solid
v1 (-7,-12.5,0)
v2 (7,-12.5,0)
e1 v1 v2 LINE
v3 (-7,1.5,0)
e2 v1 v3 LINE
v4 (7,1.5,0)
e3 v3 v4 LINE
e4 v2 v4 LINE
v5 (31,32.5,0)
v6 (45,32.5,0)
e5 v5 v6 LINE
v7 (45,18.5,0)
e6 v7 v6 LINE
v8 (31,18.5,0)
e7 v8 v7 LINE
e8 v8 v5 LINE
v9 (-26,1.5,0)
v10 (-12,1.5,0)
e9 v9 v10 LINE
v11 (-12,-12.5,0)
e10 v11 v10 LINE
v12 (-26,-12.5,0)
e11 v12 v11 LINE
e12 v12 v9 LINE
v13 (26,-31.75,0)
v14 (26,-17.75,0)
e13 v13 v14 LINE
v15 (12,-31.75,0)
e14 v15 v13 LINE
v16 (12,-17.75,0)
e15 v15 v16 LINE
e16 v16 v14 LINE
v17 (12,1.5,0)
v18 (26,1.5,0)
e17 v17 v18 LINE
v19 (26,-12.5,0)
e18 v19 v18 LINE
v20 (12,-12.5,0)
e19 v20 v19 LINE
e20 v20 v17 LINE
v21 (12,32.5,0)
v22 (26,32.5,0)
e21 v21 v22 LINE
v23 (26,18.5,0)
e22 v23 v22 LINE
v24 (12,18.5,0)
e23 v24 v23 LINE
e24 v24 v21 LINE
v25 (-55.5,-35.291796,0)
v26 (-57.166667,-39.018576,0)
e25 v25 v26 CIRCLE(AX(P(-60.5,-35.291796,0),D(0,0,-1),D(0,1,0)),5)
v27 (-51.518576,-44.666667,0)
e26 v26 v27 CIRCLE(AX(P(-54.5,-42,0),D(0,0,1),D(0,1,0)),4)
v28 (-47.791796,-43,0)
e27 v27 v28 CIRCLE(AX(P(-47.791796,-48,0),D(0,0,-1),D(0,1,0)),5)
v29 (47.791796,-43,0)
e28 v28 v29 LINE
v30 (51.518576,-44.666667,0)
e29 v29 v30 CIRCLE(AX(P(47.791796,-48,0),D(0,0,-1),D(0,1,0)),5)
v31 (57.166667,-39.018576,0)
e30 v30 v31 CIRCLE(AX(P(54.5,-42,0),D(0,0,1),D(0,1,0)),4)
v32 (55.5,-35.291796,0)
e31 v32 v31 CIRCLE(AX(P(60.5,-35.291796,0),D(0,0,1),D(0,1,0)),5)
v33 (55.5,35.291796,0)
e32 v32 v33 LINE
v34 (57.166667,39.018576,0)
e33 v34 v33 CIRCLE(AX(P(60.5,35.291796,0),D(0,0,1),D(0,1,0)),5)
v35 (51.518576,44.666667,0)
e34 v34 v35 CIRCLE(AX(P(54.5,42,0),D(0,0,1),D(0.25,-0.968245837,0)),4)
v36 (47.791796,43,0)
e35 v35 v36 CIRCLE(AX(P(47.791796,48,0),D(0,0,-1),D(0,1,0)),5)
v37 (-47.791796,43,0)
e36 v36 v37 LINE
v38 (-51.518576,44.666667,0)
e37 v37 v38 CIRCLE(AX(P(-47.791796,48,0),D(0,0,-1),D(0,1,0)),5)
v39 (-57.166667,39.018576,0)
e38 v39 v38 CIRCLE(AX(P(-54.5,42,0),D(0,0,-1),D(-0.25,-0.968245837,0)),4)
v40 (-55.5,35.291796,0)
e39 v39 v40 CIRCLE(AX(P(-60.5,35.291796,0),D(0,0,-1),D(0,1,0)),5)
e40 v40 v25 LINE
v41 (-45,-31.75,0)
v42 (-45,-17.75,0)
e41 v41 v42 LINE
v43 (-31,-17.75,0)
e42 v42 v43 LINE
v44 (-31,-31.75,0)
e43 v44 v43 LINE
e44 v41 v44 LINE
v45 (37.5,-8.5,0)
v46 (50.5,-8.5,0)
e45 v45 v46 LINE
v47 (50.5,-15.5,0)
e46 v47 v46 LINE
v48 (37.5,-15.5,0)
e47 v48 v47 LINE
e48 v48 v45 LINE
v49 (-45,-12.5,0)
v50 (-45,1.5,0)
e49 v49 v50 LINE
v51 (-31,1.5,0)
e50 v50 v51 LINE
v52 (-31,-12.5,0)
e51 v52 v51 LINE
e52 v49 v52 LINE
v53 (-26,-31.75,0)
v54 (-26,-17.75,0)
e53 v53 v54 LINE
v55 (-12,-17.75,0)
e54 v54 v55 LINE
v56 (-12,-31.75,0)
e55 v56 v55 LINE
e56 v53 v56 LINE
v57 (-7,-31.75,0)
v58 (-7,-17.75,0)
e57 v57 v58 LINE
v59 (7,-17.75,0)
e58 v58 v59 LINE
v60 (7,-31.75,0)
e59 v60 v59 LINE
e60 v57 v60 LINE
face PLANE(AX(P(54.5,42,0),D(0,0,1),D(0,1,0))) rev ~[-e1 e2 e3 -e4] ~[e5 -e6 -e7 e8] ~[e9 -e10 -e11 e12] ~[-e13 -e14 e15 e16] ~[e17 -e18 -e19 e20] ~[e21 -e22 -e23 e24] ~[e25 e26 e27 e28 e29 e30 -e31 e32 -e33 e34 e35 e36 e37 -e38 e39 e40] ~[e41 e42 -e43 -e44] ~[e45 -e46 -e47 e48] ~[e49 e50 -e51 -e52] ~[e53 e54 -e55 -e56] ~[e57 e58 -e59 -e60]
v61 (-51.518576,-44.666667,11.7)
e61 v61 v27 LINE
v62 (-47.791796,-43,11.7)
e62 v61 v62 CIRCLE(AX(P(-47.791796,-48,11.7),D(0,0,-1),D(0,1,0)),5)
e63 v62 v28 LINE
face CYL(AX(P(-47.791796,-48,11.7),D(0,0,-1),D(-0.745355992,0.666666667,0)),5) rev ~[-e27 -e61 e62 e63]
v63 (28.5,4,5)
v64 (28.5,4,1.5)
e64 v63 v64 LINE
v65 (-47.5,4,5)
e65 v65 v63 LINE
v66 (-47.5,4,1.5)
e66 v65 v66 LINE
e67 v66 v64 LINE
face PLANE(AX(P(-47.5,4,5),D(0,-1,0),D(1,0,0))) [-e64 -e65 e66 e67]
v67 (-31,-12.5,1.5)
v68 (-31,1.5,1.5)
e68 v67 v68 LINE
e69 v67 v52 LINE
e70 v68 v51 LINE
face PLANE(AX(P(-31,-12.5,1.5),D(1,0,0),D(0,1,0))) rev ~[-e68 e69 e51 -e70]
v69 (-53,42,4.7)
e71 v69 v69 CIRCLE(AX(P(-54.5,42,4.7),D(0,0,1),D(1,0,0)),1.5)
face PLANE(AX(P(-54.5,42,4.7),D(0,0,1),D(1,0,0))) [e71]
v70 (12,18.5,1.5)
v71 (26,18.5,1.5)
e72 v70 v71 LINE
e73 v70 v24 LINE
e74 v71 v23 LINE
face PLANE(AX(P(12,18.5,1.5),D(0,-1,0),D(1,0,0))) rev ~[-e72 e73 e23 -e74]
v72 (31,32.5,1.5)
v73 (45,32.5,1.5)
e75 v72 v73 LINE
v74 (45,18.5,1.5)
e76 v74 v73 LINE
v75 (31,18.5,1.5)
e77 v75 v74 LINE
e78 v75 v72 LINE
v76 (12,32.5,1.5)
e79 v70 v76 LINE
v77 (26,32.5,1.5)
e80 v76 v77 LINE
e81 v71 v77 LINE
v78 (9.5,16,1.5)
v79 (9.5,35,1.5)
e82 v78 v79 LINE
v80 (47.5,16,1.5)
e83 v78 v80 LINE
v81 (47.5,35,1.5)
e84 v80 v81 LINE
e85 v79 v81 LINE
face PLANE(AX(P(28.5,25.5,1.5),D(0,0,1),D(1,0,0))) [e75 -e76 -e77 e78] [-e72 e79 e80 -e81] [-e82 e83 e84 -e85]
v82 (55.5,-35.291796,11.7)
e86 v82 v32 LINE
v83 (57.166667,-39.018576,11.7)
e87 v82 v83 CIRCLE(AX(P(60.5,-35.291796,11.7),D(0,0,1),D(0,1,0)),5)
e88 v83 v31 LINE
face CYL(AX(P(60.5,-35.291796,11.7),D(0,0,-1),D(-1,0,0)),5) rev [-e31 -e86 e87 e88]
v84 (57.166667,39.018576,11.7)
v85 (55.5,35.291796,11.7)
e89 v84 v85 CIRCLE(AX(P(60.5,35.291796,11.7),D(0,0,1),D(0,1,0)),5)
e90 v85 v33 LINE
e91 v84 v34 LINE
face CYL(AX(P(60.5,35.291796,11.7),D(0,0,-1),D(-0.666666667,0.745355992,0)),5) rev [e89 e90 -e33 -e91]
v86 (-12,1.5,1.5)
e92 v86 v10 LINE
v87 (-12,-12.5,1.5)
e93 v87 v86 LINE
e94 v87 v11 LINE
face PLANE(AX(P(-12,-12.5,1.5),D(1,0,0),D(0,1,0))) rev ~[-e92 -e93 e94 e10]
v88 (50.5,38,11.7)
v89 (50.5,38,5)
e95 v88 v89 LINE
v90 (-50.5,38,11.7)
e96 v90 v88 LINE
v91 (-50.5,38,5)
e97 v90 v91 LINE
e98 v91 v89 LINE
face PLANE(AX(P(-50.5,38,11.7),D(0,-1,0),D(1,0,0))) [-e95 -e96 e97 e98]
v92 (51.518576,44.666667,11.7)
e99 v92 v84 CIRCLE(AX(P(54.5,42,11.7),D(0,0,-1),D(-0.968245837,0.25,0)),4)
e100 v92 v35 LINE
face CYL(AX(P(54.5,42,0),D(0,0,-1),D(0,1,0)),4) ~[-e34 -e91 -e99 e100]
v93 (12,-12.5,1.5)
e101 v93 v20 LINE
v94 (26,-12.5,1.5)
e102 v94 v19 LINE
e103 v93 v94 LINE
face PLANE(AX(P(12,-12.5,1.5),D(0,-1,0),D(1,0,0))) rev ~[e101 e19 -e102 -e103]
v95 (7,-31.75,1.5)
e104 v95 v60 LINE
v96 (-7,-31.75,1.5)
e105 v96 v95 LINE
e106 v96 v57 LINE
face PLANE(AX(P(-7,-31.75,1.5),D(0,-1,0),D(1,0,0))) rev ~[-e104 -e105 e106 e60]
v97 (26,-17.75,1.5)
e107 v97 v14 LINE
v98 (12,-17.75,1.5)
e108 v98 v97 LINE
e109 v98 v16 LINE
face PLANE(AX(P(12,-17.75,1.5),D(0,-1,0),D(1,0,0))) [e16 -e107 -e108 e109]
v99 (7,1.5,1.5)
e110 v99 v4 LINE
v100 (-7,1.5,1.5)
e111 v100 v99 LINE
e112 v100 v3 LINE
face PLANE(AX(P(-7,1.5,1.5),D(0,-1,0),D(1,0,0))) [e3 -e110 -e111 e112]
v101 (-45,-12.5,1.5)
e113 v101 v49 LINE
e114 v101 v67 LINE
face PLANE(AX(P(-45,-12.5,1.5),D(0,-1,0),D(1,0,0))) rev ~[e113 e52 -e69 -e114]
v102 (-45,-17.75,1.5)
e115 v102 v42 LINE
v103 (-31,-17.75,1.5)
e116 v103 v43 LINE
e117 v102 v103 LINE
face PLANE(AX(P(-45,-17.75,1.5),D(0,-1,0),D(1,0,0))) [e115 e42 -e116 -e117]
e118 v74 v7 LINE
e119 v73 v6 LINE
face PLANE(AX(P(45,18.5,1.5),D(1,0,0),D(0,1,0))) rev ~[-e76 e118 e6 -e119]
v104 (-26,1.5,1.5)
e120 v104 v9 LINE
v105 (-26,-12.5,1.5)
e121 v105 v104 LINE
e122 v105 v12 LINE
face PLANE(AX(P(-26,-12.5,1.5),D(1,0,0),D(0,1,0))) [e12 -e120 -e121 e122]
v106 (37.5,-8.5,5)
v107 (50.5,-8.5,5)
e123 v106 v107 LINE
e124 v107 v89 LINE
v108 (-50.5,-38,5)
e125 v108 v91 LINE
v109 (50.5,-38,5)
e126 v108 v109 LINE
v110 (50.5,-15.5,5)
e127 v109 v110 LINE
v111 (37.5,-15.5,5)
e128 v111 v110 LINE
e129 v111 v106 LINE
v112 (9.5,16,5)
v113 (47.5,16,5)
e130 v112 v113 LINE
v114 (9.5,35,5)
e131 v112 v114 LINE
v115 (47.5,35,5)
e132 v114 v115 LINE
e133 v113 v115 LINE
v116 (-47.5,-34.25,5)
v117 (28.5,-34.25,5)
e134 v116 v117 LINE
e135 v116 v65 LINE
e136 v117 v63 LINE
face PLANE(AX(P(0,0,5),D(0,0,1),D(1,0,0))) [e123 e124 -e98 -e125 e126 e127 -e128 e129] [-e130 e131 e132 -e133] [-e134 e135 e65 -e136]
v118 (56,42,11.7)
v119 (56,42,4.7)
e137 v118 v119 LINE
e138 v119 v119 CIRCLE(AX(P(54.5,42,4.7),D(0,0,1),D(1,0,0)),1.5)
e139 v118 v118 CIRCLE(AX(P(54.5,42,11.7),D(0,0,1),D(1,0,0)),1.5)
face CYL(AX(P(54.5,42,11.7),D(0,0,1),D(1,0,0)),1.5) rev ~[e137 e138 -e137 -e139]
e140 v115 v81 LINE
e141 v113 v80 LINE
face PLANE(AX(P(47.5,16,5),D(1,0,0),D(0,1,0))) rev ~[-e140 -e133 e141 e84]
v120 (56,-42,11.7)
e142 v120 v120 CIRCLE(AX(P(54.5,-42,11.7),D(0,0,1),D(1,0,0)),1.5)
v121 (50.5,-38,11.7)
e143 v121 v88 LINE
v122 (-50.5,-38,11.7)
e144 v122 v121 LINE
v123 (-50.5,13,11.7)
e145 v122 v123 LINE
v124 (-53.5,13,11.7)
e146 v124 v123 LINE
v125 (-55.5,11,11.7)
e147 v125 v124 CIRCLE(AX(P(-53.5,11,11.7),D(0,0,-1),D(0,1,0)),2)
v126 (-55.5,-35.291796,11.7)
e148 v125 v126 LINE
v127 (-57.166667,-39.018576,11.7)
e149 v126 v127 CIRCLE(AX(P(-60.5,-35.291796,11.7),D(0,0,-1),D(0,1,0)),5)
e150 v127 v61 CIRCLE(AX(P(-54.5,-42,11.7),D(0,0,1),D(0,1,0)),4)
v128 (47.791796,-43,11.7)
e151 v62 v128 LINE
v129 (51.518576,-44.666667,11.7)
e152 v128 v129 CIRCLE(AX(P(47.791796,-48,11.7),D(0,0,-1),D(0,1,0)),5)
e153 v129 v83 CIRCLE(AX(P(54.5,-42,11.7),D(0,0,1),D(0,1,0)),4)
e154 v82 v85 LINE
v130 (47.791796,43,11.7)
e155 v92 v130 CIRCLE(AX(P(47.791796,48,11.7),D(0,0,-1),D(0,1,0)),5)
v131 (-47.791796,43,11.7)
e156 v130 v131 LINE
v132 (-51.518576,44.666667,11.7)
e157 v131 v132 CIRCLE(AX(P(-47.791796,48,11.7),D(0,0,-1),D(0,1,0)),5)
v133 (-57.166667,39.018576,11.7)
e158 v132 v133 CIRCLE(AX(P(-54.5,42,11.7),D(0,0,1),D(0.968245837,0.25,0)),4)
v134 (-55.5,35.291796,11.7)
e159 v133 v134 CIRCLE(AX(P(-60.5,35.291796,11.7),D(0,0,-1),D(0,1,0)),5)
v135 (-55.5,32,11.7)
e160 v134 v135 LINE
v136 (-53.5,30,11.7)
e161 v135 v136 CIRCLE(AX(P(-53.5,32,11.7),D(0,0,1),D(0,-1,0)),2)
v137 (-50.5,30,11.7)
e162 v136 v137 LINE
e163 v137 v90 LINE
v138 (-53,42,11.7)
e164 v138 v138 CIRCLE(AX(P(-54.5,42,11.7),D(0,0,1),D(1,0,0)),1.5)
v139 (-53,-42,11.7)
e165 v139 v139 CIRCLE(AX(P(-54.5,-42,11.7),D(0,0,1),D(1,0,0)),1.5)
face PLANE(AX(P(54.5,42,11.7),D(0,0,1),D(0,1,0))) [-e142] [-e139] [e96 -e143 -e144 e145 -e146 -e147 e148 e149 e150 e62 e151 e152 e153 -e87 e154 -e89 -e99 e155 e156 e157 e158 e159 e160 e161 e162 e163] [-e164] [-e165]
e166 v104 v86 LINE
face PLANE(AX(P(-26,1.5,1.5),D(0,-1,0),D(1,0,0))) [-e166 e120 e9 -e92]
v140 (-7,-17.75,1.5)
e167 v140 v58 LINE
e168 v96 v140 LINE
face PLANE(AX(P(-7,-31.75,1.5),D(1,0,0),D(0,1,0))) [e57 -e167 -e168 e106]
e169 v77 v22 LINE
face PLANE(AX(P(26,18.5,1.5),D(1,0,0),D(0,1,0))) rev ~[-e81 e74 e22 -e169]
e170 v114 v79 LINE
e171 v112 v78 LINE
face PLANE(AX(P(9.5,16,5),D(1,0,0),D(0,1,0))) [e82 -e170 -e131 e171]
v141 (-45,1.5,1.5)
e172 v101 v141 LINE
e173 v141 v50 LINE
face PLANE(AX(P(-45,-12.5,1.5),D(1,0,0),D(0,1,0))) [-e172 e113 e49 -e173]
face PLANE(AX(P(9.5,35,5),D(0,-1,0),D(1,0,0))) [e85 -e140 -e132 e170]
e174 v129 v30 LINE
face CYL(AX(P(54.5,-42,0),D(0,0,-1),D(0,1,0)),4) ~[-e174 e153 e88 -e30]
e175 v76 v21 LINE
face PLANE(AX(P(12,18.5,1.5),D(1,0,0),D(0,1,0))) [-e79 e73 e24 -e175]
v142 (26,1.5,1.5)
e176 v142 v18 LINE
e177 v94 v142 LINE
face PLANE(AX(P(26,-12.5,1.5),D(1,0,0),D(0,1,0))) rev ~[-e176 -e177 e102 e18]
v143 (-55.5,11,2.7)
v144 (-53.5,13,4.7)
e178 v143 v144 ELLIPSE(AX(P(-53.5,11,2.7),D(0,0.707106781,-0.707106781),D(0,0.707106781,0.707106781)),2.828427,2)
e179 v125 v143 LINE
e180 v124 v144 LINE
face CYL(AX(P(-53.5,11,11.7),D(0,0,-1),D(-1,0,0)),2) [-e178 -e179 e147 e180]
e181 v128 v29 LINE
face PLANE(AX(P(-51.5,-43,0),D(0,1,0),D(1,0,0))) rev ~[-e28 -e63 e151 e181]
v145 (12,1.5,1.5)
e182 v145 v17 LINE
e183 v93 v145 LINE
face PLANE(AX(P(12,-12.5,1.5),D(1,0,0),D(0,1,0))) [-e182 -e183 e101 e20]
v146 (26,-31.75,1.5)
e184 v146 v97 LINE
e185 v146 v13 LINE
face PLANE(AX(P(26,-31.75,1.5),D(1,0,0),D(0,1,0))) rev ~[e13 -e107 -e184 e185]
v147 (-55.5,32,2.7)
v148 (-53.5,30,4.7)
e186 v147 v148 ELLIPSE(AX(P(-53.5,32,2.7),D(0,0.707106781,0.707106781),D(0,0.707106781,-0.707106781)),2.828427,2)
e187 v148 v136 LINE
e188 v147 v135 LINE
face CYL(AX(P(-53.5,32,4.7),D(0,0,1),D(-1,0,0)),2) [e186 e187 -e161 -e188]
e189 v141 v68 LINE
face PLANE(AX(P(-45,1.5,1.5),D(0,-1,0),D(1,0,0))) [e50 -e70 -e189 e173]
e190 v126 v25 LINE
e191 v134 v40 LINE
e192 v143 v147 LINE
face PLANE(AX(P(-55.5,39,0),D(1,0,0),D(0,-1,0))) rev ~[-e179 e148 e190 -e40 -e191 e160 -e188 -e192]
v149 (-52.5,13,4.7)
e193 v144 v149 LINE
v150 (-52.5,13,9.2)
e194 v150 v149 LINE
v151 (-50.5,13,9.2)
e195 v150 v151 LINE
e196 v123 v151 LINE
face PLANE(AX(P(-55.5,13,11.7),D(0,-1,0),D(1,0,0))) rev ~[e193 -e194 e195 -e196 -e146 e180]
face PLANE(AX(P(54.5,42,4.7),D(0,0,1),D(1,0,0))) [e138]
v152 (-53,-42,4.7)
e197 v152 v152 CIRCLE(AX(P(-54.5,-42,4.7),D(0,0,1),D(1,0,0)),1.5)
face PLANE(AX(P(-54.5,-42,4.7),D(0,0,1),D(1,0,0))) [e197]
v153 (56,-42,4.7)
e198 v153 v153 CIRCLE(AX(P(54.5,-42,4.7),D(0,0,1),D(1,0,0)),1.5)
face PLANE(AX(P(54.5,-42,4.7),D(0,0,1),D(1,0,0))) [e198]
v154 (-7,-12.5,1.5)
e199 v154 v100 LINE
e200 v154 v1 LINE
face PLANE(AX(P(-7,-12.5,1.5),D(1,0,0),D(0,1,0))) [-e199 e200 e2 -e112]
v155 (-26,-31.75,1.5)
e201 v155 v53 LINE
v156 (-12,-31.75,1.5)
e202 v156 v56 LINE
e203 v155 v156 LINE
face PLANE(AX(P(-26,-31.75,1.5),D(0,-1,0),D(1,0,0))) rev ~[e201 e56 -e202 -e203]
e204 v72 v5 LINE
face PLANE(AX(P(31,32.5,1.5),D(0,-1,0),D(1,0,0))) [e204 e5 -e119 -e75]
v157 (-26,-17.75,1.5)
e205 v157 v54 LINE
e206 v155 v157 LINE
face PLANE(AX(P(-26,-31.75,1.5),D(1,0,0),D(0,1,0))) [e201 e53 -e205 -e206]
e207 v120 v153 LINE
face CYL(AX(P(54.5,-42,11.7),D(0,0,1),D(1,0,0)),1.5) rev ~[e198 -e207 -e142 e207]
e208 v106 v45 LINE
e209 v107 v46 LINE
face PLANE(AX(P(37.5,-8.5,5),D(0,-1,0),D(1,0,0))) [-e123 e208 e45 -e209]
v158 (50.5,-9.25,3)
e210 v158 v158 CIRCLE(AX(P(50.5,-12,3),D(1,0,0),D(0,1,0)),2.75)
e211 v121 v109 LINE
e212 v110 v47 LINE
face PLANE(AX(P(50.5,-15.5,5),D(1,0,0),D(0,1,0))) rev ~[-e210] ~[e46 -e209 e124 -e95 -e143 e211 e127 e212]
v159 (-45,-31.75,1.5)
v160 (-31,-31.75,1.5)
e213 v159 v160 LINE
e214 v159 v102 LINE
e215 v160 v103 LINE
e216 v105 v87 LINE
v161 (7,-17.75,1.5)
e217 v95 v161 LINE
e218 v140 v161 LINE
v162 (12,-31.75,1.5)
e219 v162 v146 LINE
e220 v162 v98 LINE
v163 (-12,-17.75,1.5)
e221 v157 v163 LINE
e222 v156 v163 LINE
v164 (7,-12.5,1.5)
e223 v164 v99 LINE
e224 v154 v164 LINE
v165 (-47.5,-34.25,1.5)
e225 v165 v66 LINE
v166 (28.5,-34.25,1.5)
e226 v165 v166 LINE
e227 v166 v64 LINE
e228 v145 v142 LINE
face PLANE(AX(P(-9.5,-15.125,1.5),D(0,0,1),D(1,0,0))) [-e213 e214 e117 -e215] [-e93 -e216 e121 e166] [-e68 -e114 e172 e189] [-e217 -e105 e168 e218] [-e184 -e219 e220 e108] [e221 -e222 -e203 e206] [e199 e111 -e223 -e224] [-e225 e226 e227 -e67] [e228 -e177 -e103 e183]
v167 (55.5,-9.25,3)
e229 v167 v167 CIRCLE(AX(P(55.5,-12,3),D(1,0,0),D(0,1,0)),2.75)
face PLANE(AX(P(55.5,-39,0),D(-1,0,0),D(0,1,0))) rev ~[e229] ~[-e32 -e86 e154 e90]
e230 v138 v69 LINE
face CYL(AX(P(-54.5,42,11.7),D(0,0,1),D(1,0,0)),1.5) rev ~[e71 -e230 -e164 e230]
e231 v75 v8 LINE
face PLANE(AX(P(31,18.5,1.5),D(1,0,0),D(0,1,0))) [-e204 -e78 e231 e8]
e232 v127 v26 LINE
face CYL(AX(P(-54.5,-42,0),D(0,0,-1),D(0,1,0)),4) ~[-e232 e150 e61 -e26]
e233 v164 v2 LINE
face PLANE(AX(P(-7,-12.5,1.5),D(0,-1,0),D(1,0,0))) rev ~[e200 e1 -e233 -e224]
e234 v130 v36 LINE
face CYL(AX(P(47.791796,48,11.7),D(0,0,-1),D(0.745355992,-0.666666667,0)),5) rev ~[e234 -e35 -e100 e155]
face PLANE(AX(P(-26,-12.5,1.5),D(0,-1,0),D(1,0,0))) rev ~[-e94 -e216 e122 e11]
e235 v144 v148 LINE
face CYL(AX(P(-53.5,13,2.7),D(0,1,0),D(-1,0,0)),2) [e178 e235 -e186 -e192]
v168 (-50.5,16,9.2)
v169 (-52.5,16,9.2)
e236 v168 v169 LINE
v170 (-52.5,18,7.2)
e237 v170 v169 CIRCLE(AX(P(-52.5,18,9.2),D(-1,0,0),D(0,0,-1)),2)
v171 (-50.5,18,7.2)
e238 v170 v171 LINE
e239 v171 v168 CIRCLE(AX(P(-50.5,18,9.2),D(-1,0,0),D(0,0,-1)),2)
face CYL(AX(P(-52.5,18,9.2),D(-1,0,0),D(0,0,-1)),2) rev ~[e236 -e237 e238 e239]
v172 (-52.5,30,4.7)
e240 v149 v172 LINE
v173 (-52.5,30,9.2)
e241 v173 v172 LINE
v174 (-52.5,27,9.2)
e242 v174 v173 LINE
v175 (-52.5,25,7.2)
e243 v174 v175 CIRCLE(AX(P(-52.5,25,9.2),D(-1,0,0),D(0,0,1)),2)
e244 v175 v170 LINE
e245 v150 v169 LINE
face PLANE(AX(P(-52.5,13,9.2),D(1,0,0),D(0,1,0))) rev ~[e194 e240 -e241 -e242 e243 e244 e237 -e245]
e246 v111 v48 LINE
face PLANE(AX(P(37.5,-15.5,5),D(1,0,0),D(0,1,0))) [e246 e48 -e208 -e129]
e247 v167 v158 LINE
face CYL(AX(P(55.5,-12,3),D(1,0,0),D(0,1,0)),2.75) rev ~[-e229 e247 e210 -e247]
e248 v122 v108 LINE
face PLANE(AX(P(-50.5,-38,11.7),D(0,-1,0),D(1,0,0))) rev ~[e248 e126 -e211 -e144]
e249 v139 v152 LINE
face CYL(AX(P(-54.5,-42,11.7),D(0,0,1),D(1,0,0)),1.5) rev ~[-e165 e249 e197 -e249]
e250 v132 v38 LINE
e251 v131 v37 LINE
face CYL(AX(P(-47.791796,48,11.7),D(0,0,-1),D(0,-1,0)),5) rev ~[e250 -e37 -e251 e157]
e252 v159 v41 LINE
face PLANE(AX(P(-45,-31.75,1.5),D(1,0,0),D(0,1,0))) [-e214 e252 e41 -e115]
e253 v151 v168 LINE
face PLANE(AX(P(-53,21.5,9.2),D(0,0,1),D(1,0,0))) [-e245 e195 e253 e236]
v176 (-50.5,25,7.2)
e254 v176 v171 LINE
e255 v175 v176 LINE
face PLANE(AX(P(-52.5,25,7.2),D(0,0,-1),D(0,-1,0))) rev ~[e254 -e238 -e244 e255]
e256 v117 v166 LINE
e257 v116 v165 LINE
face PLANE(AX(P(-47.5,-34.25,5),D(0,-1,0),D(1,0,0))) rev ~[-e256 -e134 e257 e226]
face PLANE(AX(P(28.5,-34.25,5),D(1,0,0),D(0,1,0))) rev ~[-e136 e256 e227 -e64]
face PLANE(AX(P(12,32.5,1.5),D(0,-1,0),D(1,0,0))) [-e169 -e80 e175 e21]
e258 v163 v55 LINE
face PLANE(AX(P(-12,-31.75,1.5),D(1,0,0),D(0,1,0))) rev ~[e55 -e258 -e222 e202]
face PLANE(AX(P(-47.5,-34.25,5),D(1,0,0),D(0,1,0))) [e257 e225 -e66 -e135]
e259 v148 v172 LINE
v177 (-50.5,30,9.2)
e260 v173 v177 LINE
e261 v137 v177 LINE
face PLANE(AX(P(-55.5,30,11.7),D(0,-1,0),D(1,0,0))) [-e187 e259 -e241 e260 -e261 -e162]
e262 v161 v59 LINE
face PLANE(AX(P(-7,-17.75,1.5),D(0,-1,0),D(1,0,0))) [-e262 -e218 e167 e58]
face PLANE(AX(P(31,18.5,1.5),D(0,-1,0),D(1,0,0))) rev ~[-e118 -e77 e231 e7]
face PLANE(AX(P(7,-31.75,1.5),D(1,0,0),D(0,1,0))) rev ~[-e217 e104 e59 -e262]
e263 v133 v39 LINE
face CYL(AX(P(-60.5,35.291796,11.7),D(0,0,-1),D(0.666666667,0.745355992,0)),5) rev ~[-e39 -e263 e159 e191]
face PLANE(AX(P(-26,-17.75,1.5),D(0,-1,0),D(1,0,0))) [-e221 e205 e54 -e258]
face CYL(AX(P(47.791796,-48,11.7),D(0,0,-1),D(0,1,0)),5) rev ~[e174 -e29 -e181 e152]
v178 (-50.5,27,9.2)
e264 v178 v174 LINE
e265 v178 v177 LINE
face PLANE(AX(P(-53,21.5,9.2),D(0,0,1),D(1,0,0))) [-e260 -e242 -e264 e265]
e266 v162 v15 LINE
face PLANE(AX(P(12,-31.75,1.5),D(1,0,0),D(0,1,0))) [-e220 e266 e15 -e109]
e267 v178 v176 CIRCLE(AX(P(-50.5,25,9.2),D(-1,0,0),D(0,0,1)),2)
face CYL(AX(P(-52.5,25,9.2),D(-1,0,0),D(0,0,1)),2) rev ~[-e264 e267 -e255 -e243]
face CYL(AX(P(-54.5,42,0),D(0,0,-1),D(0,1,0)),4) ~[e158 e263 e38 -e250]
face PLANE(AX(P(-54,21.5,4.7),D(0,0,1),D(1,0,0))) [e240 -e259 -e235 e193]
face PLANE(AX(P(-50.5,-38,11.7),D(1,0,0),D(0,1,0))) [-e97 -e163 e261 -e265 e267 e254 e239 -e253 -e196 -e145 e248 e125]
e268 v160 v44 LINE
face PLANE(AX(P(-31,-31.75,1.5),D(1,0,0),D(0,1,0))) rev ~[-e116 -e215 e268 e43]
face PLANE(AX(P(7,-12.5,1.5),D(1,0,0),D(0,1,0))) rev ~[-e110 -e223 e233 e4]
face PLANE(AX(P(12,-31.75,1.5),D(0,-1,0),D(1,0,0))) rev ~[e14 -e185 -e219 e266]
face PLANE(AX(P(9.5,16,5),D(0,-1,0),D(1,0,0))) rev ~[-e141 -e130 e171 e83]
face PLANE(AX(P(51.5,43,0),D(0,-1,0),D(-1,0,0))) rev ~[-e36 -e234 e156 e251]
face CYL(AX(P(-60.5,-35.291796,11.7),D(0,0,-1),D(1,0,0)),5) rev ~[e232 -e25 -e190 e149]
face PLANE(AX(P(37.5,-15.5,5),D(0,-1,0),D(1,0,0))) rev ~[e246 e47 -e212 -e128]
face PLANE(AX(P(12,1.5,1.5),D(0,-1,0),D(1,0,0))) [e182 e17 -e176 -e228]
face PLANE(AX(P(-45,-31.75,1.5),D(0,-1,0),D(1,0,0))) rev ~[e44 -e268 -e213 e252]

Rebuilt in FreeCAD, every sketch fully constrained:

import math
import FreeCAD as App
import Part
import Sketcher
from FreeCAD import Vector


def edges_at(feature, points):
    """Names of the edges that pass closest to the given points."""
    edges = feature.Shape.Edges
    near = lambda p: min(range(len(edges)), key=lambda i: edges[i].distToShape(Part.Vertex(*p))[0])
    return sorted({f"Edge{near(p) + 1}" for p in points})

doc = App.newDocument("Part")
body = doc.addObject("PartDesign::Body", "Body")

# Sketch on XY plane
sketch1 = body.newObject("Sketcher::SketchObject", "Sketch")
sketch1.AttachmentSupport = (doc.getObject("XY_Plane"), [""])
sketch1.MapMode = "FlatFace"
sketch1.addGeometry(Part.LineSegment(Vector(51.5, 43, 0), Vector(-51.5, 43, 0)), False)
sketch1.addGeometry(Part.ArcOfCircle(Part.Circle(Vector(-51.5, 39, 0), Vector(0, 0, 1), 4), math.radians(90), math.radians(180)), False)
sketch1.addGeometry(Part.LineSegment(Vector(-55.5, 39, 0), Vector(-55.5, -39, 0)), False)
sketch1.addGeometry(Part.ArcOfCircle(Part.Circle(Vector(-51.5, -39, 0), Vector(0, 0, 1), 4), math.radians(-180), math.radians(-90)), False)
sketch1.addGeometry(Part.LineSegment(Vector(-51.5, -43, 0), Vector(51.5, -43, 0)), False)
sketch1.addGeometry(Part.ArcOfCircle(Part.Circle(Vector(51.5, -39, 0), Vector(0, 0, 1), 4), math.radians(-90), math.radians(0)), False)
sketch1.addGeometry(Part.LineSegment(Vector(55.5, -39, 0), Vector(55.5, 39, 0)), False)
sketch1.addGeometry(Part.ArcOfCircle(Part.Circle(Vector(51.5, 39, 0), Vector(0, 0, 1), 4), math.radians(0), math.radians(90)), False)
sketch1.addConstraint(Sketcher.Constraint("Tangent", 0, 2, 1, 1))
sketch1.addConstraint(Sketcher.Constraint("Tangent", 1, 2, 2, 1))
sketch1.addConstraint(Sketcher.Constraint("Tangent", 2, 2, 3, 1))
sketch1.addConstraint(Sketcher.Constraint("Tangent", 3, 2, 4, 1))
sketch1.addConstraint(Sketcher.Constraint("Tangent", 4, 2, 5, 1))
sketch1.addConstraint(Sketcher.Constraint("Tangent", 5, 2, 6, 1))
sketch1.addConstraint(Sketcher.Constraint("Tangent", 6, 2, 7, 1))
sketch1.addConstraint(Sketcher.Constraint("Tangent", 7, 2, 0, 1))
sketch1.addConstraint(Sketcher.Constraint("Horizontal", 0))
sketch1.addConstraint(Sketcher.Constraint("Vertical", 2))
sketch1.addConstraint(Sketcher.Constraint("Horizontal", 4))
sketch1.addConstraint(Sketcher.Constraint("Vertical", 6))
sketch1.addConstraint(Sketcher.Constraint("Equal", 1, 3))
sketch1.addConstraint(Sketcher.Constraint("Equal", 3, 5))
sketch1.addConstraint(Sketcher.Constraint("Equal", 5, 7))
sketch1.addConstraint(Sketcher.Constraint("Symmetric", 1, 3, 5, 3, -1, 1))
sketch1.addConstraint(Sketcher.Constraint("Radius", 1, 4.0))
sketch1.addConstraint(Sketcher.Constraint("DistanceX", 0, 2, 0, 1, 103.0))
sketch1.addConstraint(Sketcher.Constraint("DistanceY", 2, 2, 2, 1, 78.0))
pad1 = body.newObject("PartDesign::Pad", "Pad")
pad1.Profile = sketch1
pad1.Length = 11.7

# Sketch on XY plane
sketch2 = body.newObject("Sketcher::SketchObject", "Sketch001")
sketch2.AttachmentSupport = (doc.getObject("XY_Plane"), [""])
sketch2.MapMode = "FlatFace"
sketch2.addGeometry(Part.Circle(Vector(54.5, 42, 0), Vector(0, 0, 1), 4), False)
sketch2.addGeometry(Part.Circle(Vector(-54.5, 42, 0), Vector(0, 0, 1), 4), False)
sketch2.addGeometry(Part.Circle(Vector(54.5, -42, 0), Vector(0, 0, 1), 4), False)
sketch2.addGeometry(Part.Circle(Vector(-54.5, -42, 0), Vector(0, 0, 1), 4), False)
sketch2.addConstraint(Sketcher.Constraint("Equal", 0, 1))
sketch2.addConstraint(Sketcher.Constraint("Equal", 1, 2))
sketch2.addConstraint(Sketcher.Constraint("Equal", 2, 3))
sketch2.addConstraint(Sketcher.Constraint("Symmetric", 1, 3, 2, 3, -1, 1))
sketch2.addConstraint(Sketcher.Constraint("Symmetric", 0, 3, 3, 3, -1, 1))
sketch2.addConstraint(Sketcher.Constraint("Symmetric", 0, 3, 1, 3, -2))
sketch2.addConstraint(Sketcher.Constraint("Diameter", 0, 8.0))
sketch2.addConstraint(Sketcher.Constraint("DistanceY", -1, 1, 0, 3, 42.0))
sketch2.addConstraint(Sketcher.Constraint("DistanceX", 1, 3, 0, 3, 109.0))
pad2 = body.newObject("PartDesign::Pad", "Pad001")
pad2.Profile = sketch2
pad2.Length = 11.7

# Sketch on XY plane
sketch3 = body.newObject("Sketcher::SketchObject", "Sketch002")
sketch3.AttachmentSupport = (doc.getObject("XY_Plane"), [""])
sketch3.MapMode = "FlatFace"
sketch3.AttachmentOffset = App.Placement(Vector(0, 0, 11.7), App.Rotation())
sketch3.addGeometry(Part.Circle(Vector(54.5, 42, 0), Vector(0, 0, 1), 1.5), False)
sketch3.addGeometry(Part.Circle(Vector(-54.5, 42, 0), Vector(0, 0, 1), 1.5), False)
sketch3.addGeometry(Part.Circle(Vector(-54.5, -42, 0), Vector(0, 0, 1), 1.5), False)
sketch3.addGeometry(Part.Circle(Vector(54.5, -42, 0), Vector(0, 0, 1), 1.5), False)
sketch3.addConstraint(Sketcher.Constraint("Equal", 0, 1))
sketch3.addConstraint(Sketcher.Constraint("Equal", 1, 2))
sketch3.addConstraint(Sketcher.Constraint("Equal", 2, 3))
sketch3.addConstraint(Sketcher.Constraint("Symmetric", 0, 3, 2, 3, -1, 1))
sketch3.addConstraint(Sketcher.Constraint("Symmetric", 1, 3, 3, 3, -1, 1))
sketch3.addConstraint(Sketcher.Constraint("Symmetric", 0, 3, 1, 3, -2))
sketch3.addConstraint(Sketcher.Constraint("Diameter", 0, 3.0))
sketch3.addConstraint(Sketcher.Constraint("DistanceY", -1, 1, 0, 3, 42.0))
sketch3.addConstraint(Sketcher.Constraint("DistanceX", 1, 3, 0, 3, 109.0))
pocket1 = body.newObject("PartDesign::Pocket", "Pocket")
pocket1.Profile = sketch3
pocket1.Length = 7
doc.recompute()

fillet = body.newObject("PartDesign::Fillet", "Fillet")
fillet.Base = (pocket1, edges_at(pocket1, [
    (-55.5, -38.127, 5.85),
    (-55.5, 38.127, 5.85),
    (50.627, 43, 5.85),
    (-50.627, 43, 5.85),
    (55.5, -38.127, 5.85),
    (55.5, 38.127, 5.85),
    (-50.627, -43, 5.85),
    (50.627, -43, 5.85),
]))
fillet.Radius = 5

# Sketch on XY plane
sketch4 = body.newObject("Sketcher::SketchObject", "Sketch003")
sketch4.AttachmentSupport = (doc.getObject("XY_Plane"), [""])
sketch4.MapMode = "FlatFace"
sketch4.AttachmentOffset = App.Placement(Vector(0, 0, 11.7), App.Rotation())
sketch4.addGeometry(Part.LineSegment(Vector(-50, 38, 0), Vector(-50, -38, 0)), False)
sketch4.addGeometry(Part.LineSegment(Vector(-50, -38, 0), Vector(50, -38, 0)), False)
sketch4.addGeometry(Part.LineSegment(Vector(50, -38, 0), Vector(50, 38, 0)), False)
sketch4.addGeometry(Part.LineSegment(Vector(50, 38, 0), Vector(-50, 38, 0)), False)
sketch4.addConstraint(Sketcher.Constraint("Coincident", 0, 2, 1, 1))
sketch4.addConstraint(Sketcher.Constraint("Coincident", 1, 2, 2, 1))
sketch4.addConstraint(Sketcher.Constraint("Coincident", 2, 2, 3, 1))
sketch4.addConstraint(Sketcher.Constraint("Coincident", 3, 2, 0, 1))
sketch4.addConstraint(Sketcher.Constraint("Vertical", 0))
sketch4.addConstraint(Sketcher.Constraint("Horizontal", 1))
sketch4.addConstraint(Sketcher.Constraint("Vertical", 2))
sketch4.addConstraint(Sketcher.Constraint("Horizontal", 3))
sketch4.addConstraint(Sketcher.Constraint("Symmetric", 0, 2, 2, 2, -1, 1))
sketch4.addConstraint(Sketcher.Constraint("DistanceX", 1, 1, 1, 2, 101.0))
sketch4.addConstraint(Sketcher.Constraint("DistanceY", 0, 2, 0, 1, 76.0))
pocket2 = body.newObject("PartDesign::Pocket", "Pocket001")
pocket2.Profile = sketch4
pocket2.Length = 6.7

# Sketch on XY plane
sketch5 = body.newObject("Sketcher::SketchObject", "Sketch004")
sketch5.AttachmentSupport = (doc.getObject("XY_Plane"), [""])
sketch5.MapMode = "FlatFace"
sketch5.AttachmentOffset = App.Placement(Vector(0, 0, 5), App.Rotation())
sketch5.addGeometry(Part.LineSegment(Vector(-48, 4, 0), Vector(-48, -34, 0)), False)
sketch5.addGeometry(Part.LineSegment(Vector(-48, -34, 0), Vector(28, -34, 0)), False)
sketch5.addGeometry(Part.LineSegment(Vector(28, -34, 0), Vector(28, 4, 0)), False)
sketch5.addGeometry(Part.LineSegment(Vector(28, 4, 0), Vector(-48, 4, 0)), False)
sketch5.addGeometry(Part.LineSegment(Vector(10, 35, 0), Vector(10, 16, 0)), False)
sketch5.addGeometry(Part.LineSegment(Vector(10, 16, 0), Vector(48, 16, 0)), False)
sketch5.addGeometry(Part.LineSegment(Vector(48, 16, 0), Vector(48, 35, 0)), False)
sketch5.addGeometry(Part.LineSegment(Vector(48, 35, 0), Vector(10, 35, 0)), False)
sketch5.addConstraint(Sketcher.Constraint("Coincident", 0, 2, 1, 1))
sketch5.addConstraint(Sketcher.Constraint("Coincident", 1, 2, 2, 1))
sketch5.addConstraint(Sketcher.Constraint("Coincident", 2, 2, 3, 1))
sketch5.addConstraint(Sketcher.Constraint("Coincident", 3, 2, 0, 1))
sketch5.addConstraint(Sketcher.Constraint("Coincident", 4, 2, 5, 1))
sketch5.addConstraint(Sketcher.Constraint("Coincident", 5, 2, 6, 1))
sketch5.addConstraint(Sketcher.Constraint("Coincident", 6, 2, 7, 1))
sketch5.addConstraint(Sketcher.Constraint("Coincident", 7, 2, 4, 1))
sketch5.addConstraint(Sketcher.Constraint("Vertical", 0))
sketch5.addConstraint(Sketcher.Constraint("Horizontal", 1))
sketch5.addConstraint(Sketcher.Constraint("Vertical", 2))
sketch5.addConstraint(Sketcher.Constraint("Horizontal", 3))
sketch5.addConstraint(Sketcher.Constraint("Vertical", 4))
sketch5.addConstraint(Sketcher.Constraint("Horizontal", 5))
sketch5.addConstraint(Sketcher.Constraint("Vertical", 6))
sketch5.addConstraint(Sketcher.Constraint("Horizontal", 7))
sketch5.addConstraint(Sketcher.Constraint("DistanceX", 1, 1, 1, 2, 76.0))
sketch5.addConstraint(Sketcher.Constraint("DistanceX", 5, 1, 5, 2, 38.0))
sketch5.addConstraint(Sketcher.Constraint("DistanceY", 4, 2, 4, 1, 19.0))
sketch5.addConstraint(Sketcher.Constraint("DistanceY", -1, 1, 2, 2, 4.0))
sketch5.addConstraint(Sketcher.Constraint("DistanceY", -1, 1, 4, 2, 16.0))
sketch5.addConstraint(Sketcher.Constraint("DistanceX", 4, 2, 2, 2, 19.0))
sketch5.addConstraint(Sketcher.Constraint("DistanceY", 0, 2, 0, 1, 38.25))
sketch5.addConstraint(Sketcher.Constraint("DistanceX", 0, 2, -1, 1, 47.5))
pocket3 = body.newObject("PartDesign::Pocket", "Pocket002")
pocket3.Profile = sketch5
pocket3.Length = 3.5

# Sketch on XY plane
sketch6 = body.newObject("Sketcher::SketchObject", "Sketch005")
sketch6.AttachmentSupport = (doc.getObject("XY_Plane"), [""])
sketch6.MapMode = "FlatFace"
sketch6.AttachmentOffset = App.Placement(Vector(0, 0, 1.5), App.Rotation())
sketch6.addGeometry(Part.LineSegment(Vector(-45, 2, 0), Vector(-45, -12, 0)), False)
sketch6.addGeometry(Part.LineSegment(Vector(-45, -12, 0), Vector(-31, -12, 0)), False)
sketch6.addGeometry(Part.LineSegment(Vector(-31, -12, 0), Vector(-31, 2, 0)), False)
sketch6.addGeometry(Part.LineSegment(Vector(-31, 2, 0), Vector(-45, 2, 0)), False)
sketch6.addGeometry(Part.LineSegment(Vector(-26, 2, 0), Vector(-26, -12, 0)), False)
sketch6.addGeometry(Part.LineSegment(Vector(-26, -12, 0), Vector(-12, -12, 0)), False)
sketch6.addGeometry(Part.LineSegment(Vector(-12, -12, 0), Vector(-12, 2, 0)), False)
sketch6.addGeometry(Part.LineSegment(Vector(-12, 2, 0), Vector(-26, 2, 0)), False)
sketch6.addGeometry(Part.LineSegment(Vector(-7, 2, 0), Vector(-7, -12, 0)), False)
sketch6.addGeometry(Part.LineSegment(Vector(-7, -12, 0), Vector(7, -12, 0)), False)
sketch6.addGeometry(Part.LineSegment(Vector(7, -12, 0), Vector(7, 2, 0)), False)
sketch6.addGeometry(Part.LineSegment(Vector(7, 2, 0), Vector(-7, 2, 0)), False)
sketch6.addGeometry(Part.LineSegment(Vector(12, 2, 0), Vector(12, -12, 0)), False)
sketch6.addGeometry(Part.LineSegment(Vector(12, -12, 0), Vector(26, -12, 0)), False)
sketch6.addGeometry(Part.LineSegment(Vector(26, -12, 0), Vector(26, 2, 0)), False)
sketch6.addGeometry(Part.LineSegment(Vector(26, 2, 0), Vector(12, 2, 0)), False)
sketch6.addGeometry(Part.LineSegment(Vector(-45, -18, 0), Vector(-45, -32, 0)), False)
sketch6.addGeometry(Part.LineSegment(Vector(-45, -32, 0), Vector(-31, -32, 0)), False)
sketch6.addGeometry(Part.LineSegment(Vector(-31, -32, 0), Vector(-31, -18, 0)), False)
sketch6.addGeometry(Part.LineSegment(Vector(-31, -18, 0), Vector(-45, -18, 0)), False)
sketch6.addGeometry(Part.LineSegment(Vector(-26, -18, 0), Vector(-26, -32, 0)), False)
sketch6.addGeometry(Part.LineSegment(Vector(-26, -32, 0), Vector(-12, -32, 0)), False)
sketch6.addGeometry(Part.LineSegment(Vector(-12, -32, 0), Vector(-12, -18, 0)), False)
sketch6.addGeometry(Part.LineSegment(Vector(-12, -18, 0), Vector(-26, -18, 0)), False)
sketch6.addGeometry(Part.LineSegment(Vector(-7, -18, 0), Vector(-7, -32, 0)), False)
sketch6.addGeometry(Part.LineSegment(Vector(-7, -32, 0), Vector(7, -32, 0)), False)
sketch6.addGeometry(Part.LineSegment(Vector(7, -32, 0), Vector(7, -18, 0)), False)
sketch6.addGeometry(Part.LineSegment(Vector(7, -18, 0), Vector(-7, -18, 0)), False)
sketch6.addGeometry(Part.LineSegment(Vector(12, -18, 0), Vector(12, -32, 0)), False)
sketch6.addGeometry(Part.LineSegment(Vector(12, -32, 0), Vector(26, -32, 0)), False)
sketch6.addGeometry(Part.LineSegment(Vector(26, -32, 0), Vector(26, -18, 0)), False)
sketch6.addGeometry(Part.LineSegment(Vector(26, -18, 0), Vector(12, -18, 0)), False)
sketch6.addGeometry(Part.LineSegment(Vector(12, 32, 0), Vector(12, 18, 0)), False)
sketch6.addGeometry(Part.LineSegment(Vector(12, 18, 0), Vector(26, 18, 0)), False)
sketch6.addGeometry(Part.LineSegment(Vector(26, 18, 0), Vector(26, 32, 0)), False)
sketch6.addGeometry(Part.LineSegment(Vector(26, 32, 0), Vector(12, 32, 0)), False)
sketch6.addGeometry(Part.LineSegment(Vector(31, 32, 0), Vector(31, 18, 0)), False)
sketch6.addGeometry(Part.LineSegment(Vector(31, 18, 0), Vector(45, 18, 0)), False)
sketch6.addGeometry(Part.LineSegment(Vector(45, 18, 0), Vector(45, 32, 0)), False)
sketch6.addGeometry(Part.LineSegment(Vector(45, 32, 0), Vector(31, 32, 0)), False)
sketch6.addConstraint(Sketcher.Constraint("Coincident", 0, 2, 1, 1))
sketch6.addConstraint(Sketcher.Constraint("Coincident", 1, 2, 2, 1))
sketch6.addConstraint(Sketcher.Constraint("Coincident", 2, 2, 3, 1))
sketch6.addConstraint(Sketcher.Constraint("Coincident", 3, 2, 0, 1))
sketch6.addConstraint(Sketcher.Constraint("Coincident", 4, 2, 5, 1))
sketch6.addConstraint(Sketcher.Constraint("Coincident", 5, 2, 6, 1))
sketch6.addConstraint(Sketcher.Constraint("Coincident", 6, 2, 7, 1))
sketch6.addConstraint(Sketcher.Constraint("Coincident", 7, 2, 4, 1))
sketch6.addConstraint(Sketcher.Constraint("Coincident", 8, 2, 9, 1))
sketch6.addConstraint(Sketcher.Constraint("Coincident", 9, 2, 10, 1))
sketch6.addConstraint(Sketcher.Constraint("Coincident", 10, 2, 11, 1))
sketch6.addConstraint(Sketcher.Constraint("Coincident", 11, 2, 8, 1))
sketch6.addConstraint(Sketcher.Constraint("Coincident", 12, 2, 13, 1))
sketch6.addConstraint(Sketcher.Constraint("Coincident", 13, 2, 14, 1))
sketch6.addConstraint(Sketcher.Constraint("Coincident", 14, 2, 15, 1))
sketch6.addConstraint(Sketcher.Constraint("Coincident", 15, 2, 12, 1))
sketch6.addConstraint(Sketcher.Constraint("Coincident", 16, 2, 17, 1))
sketch6.addConstraint(Sketcher.Constraint("Coincident", 17, 2, 18, 1))
sketch6.addConstraint(Sketcher.Constraint("Coincident", 18, 2, 19, 1))
sketch6.addConstraint(Sketcher.Constraint("Coincident", 19, 2, 16, 1))
sketch6.addConstraint(Sketcher.Constraint("Coincident", 20, 2, 21, 1))
sketch6.addConstraint(Sketcher.Constraint("Coincident", 21, 2, 22, 1))
sketch6.addConstraint(Sketcher.Constraint("Coincident", 22, 2, 23, 1))
sketch6.addConstraint(Sketcher.Constraint("Coincident", 23, 2, 20, 1))
sketch6.addConstraint(Sketcher.Constraint("Coincident", 24, 2, 25, 1))
sketch6.addConstraint(Sketcher.Constraint("Coincident", 25, 2, 26, 1))
sketch6.addConstraint(Sketcher.Constraint("Coincident", 26, 2, 27, 1))
sketch6.addConstraint(Sketcher.Constraint("Coincident", 27, 2, 24, 1))
sketch6.addConstraint(Sketcher.Constraint("Coincident", 28, 2, 29, 1))
sketch6.addConstraint(Sketcher.Constraint("Coincident", 29, 2, 30, 1))
sketch6.addConstraint(Sketcher.Constraint("Coincident", 30, 2, 31, 1))
sketch6.addConstraint(Sketcher.Constraint("Coincident", 31, 2, 28, 1))
sketch6.addConstraint(Sketcher.Constraint("Coincident", 32, 2, 33, 1))
sketch6.addConstraint(Sketcher.Constraint("Coincident", 33, 2, 34, 1))
sketch6.addConstraint(Sketcher.Constraint("Coincident", 34, 2, 35, 1))
sketch6.addConstraint(Sketcher.Constraint("Coincident", 35, 2, 32, 1))
sketch6.addConstraint(Sketcher.Constraint("Coincident", 36, 2, 37, 1))
sketch6.addConstraint(Sketcher.Constraint("Coincident", 37, 2, 38, 1))
sketch6.addConstraint(Sketcher.Constraint("Coincident", 38, 2, 39, 1))
sketch6.addConstraint(Sketcher.Constraint("Coincident", 39, 2, 36, 1))
sketch6.addConstraint(Sketcher.Constraint("Vertical", 0))
sketch6.addConstraint(Sketcher.Constraint("Horizontal", 1))
sketch6.addConstraint(Sketcher.Constraint("Vertical", 2))
sketch6.addConstraint(Sketcher.Constraint("Horizontal", 3))
sketch6.addConstraint(Sketcher.Constraint("Vertical", 4))
sketch6.addConstraint(Sketcher.Constraint("Horizontal", 5))
sketch6.addConstraint(Sketcher.Constraint("Vertical", 6))
sketch6.addConstraint(Sketcher.Constraint("Horizontal", 7))
sketch6.addConstraint(Sketcher.Constraint("Vertical", 8))
sketch6.addConstraint(Sketcher.Constraint("Horizontal", 9))
sketch6.addConstraint(Sketcher.Constraint("Vertical", 10))
sketch6.addConstraint(Sketcher.Constraint("Horizontal", 11))
sketch6.addConstraint(Sketcher.Constraint("Vertical", 12))
sketch6.addConstraint(Sketcher.Constraint("Horizontal", 13))
sketch6.addConstraint(Sketcher.Constraint("Vertical", 14))
sketch6.addConstraint(Sketcher.Constraint("Horizontal", 15))
sketch6.addConstraint(Sketcher.Constraint("Vertical", 16))
sketch6.addConstraint(Sketcher.Constraint("Horizontal", 17))
sketch6.addConstraint(Sketcher.Constraint("Vertical", 18))
sketch6.addConstraint(Sketcher.Constraint("Horizontal", 19))
sketch6.addConstraint(Sketcher.Constraint("Vertical", 20))
sketch6.addConstraint(Sketcher.Constraint("Horizontal", 21))
sketch6.addConstraint(Sketcher.Constraint("Vertical", 22))
sketch6.addConstraint(Sketcher.Constraint("Horizontal", 23))
sketch6.addConstraint(Sketcher.Constraint("Vertical", 24))
sketch6.addConstraint(Sketcher.Constraint("Horizontal", 25))
sketch6.addConstraint(Sketcher.Constraint("Vertical", 26))
sketch6.addConstraint(Sketcher.Constraint("Horizontal", 27))
sketch6.addConstraint(Sketcher.Constraint("Vertical", 28))
sketch6.addConstraint(Sketcher.Constraint("Horizontal", 29))
sketch6.addConstraint(Sketcher.Constraint("Vertical", 30))
sketch6.addConstraint(Sketcher.Constraint("Horizontal", 31))
sketch6.addConstraint(Sketcher.Constraint("Vertical", 32))
sketch6.addConstraint(Sketcher.Constraint("Horizontal", 33))
sketch6.addConstraint(Sketcher.Constraint("Vertical", 34))
sketch6.addConstraint(Sketcher.Constraint("Horizontal", 35))
sketch6.addConstraint(Sketcher.Constraint("Vertical", 36))
sketch6.addConstraint(Sketcher.Constraint("Horizontal", 37))
sketch6.addConstraint(Sketcher.Constraint("Vertical", 38))
sketch6.addConstraint(Sketcher.Constraint("Horizontal", 39))
sketch6.addConstraint(Sketcher.Constraint("Symmetric", 5, 2, 12, 2, -2))
sketch6.addConstraint(Sketcher.Constraint("Symmetric", 7, 2, 14, 2, -2))
sketch6.addConstraint(Sketcher.Constraint("Symmetric", 21, 2, 28, 2, -2))
sketch6.addConstraint(Sketcher.Constraint("Symmetric", 23, 2, 30, 2, -2))
sketch6.addConstraint(Sketcher.Constraint("Horizontal", 1, 2, 4, 2))
sketch6.addConstraint(Sketcher.Constraint("Horizontal", 3, 2, 6, 2))
sketch6.addConstraint(Sketcher.Constraint("Horizontal", 5, 2, 8, 2))
sketch6.addConstraint(Sketcher.Constraint("Horizontal", 7, 2, 10, 2))
sketch6.addConstraint(Sketcher.Constraint("Horizontal", 17, 2, 20, 2))
sketch6.addConstraint(Sketcher.Constraint("Horizontal", 19, 2, 22, 2))
sketch6.addConstraint(Sketcher.Constraint("Horizontal", 21, 2, 24, 2))
sketch6.addConstraint(Sketcher.Constraint("Horizontal", 23, 2, 26, 2))
sketch6.addConstraint(Sketcher.Constraint("Horizontal", 33, 2, 36, 2))
sketch6.addConstraint(Sketcher.Constraint("Horizontal", 35, 2, 38, 2))
sketch6.addConstraint(Sketcher.Constraint("Vertical", 3, 2, 16, 2))
sketch6.addConstraint(Sketcher.Constraint("Vertical", 2, 2, 17, 2))
sketch6.addConstraint(Sketcher.Constraint("Vertical", 7, 2, 20, 2))
sketch6.addConstraint(Sketcher.Constraint("Vertical", 6, 2, 21, 2))
sketch6.addConstraint(Sketcher.Constraint("Vertical", 11, 2, 24, 2))
sketch6.addConstraint(Sketcher.Constraint("Vertical", 10, 2, 25, 2))
sketch6.addConstraint(Sketcher.Constraint("Vertical", 31, 2, 32, 2))
sketch6.addConstraint(Sketcher.Constraint("Vertical", 30, 2, 33, 2))
sketch6.addConstraint(Sketcher.Constraint("Equal", 3, 5))
sketch6.addConstraint(Sketcher.Constraint("Equal", 7, 9))
sketch6.addConstraint(Sketcher.Constraint("Equal", 35, 37))
sketch6.addConstraint(Sketcher.Constraint("Equal", 39, 0))
sketch6.addConstraint(Sketcher.Constraint("Equal", 14, 16))
sketch6.addConstraint(Sketcher.Constraint("Equal", 30, 32))
sketch6.addConstraint(Sketcher.Constraint("DistanceX", 1, 1, 1, 2, 14.0))
sketch6.addConstraint(Sketcher.Constraint("DistanceX", 0, 2, -1, 1, 45.0))
sketch6.addConstraint(Sketcher.Constraint("DistanceX", 4, 2, -1, 1, 26.0))
sketch6.addConstraint(Sketcher.Constraint("DistanceX", 8, 2, -1, 1, 7.0))
sketch6.addConstraint(Sketcher.Constraint("DistanceX", -1, 1, 36, 2, 31.0))
sketch6.addConstraint(Sketcher.Constraint("DistanceY", 15, 2, 32, 2, 17.0))
sketch6.addConstraint(Sketcher.Constraint("DistanceY", 0, 2, -1, 1, 12.5))
sketch6.addConstraint(Sketcher.Constraint("DistanceY", 16, 2, -1, 1, 31.75))
pocket4 = body.newObject("PartDesign::Pocket", "Pocket003")
pocket4.Profile = sketch6
pocket4.Length = 1.5

# Sketch on XY plane
sketch7 = body.newObject("Sketcher::SketchObject", "Sketch006")
sketch7.AttachmentSupport = (doc.getObject("XY_Plane"), [""])
sketch7.MapMode = "FlatFace"
sketch7.AttachmentOffset = App.Placement(Vector(0, 0, 5), App.Rotation())
sketch7.addGeometry(Part.LineSegment(Vector(38, -8, 0), Vector(38, -16, 0)), False)
sketch7.addGeometry(Part.LineSegment(Vector(38, -16, 0), Vector(50, -16, 0)), False)
sketch7.addGeometry(Part.LineSegment(Vector(50, -16, 0), Vector(50, -8, 0)), False)
sketch7.addGeometry(Part.LineSegment(Vector(50, -8, 0), Vector(38, -8, 0)), False)
sketch7.addConstraint(Sketcher.Constraint("Coincident", 0, 2, 1, 1))
sketch7.addConstraint(Sketcher.Constraint("Coincident", 1, 2, 2, 1))
sketch7.addConstraint(Sketcher.Constraint("Coincident", 2, 2, 3, 1))
sketch7.addConstraint(Sketcher.Constraint("Coincident", 3, 2, 0, 1))
sketch7.addConstraint(Sketcher.Constraint("Vertical", 0))
sketch7.addConstraint(Sketcher.Constraint("Horizontal", 1))
sketch7.addConstraint(Sketcher.Constraint("Vertical", 2))
sketch7.addConstraint(Sketcher.Constraint("Horizontal", 3))
sketch7.addConstraint(Sketcher.Constraint("DistanceX", 1, 1, 1, 2, 13.0))
sketch7.addConstraint(Sketcher.Constraint("DistanceY", 0, 2, 0, 1, 7.0))
sketch7.addConstraint(Sketcher.Constraint("DistanceX", -1, 1, 0, 2, 37.5))
sketch7.addConstraint(Sketcher.Constraint("DistanceY", 0, 2, -1, 1, 15.5))
pocket5 = body.newObject("PartDesign::Pocket", "Pocket004")
pocket5.Profile = sketch7
pocket5.Length = 5

# Sketch on YZ plane
sketch8 = body.newObject("Sketcher::SketchObject", "Sketch007")
sketch8.AttachmentSupport = (doc.getObject("YZ_Plane"), [""])
sketch8.MapMode = "FlatFace"
sketch8.AttachmentOffset = App.Placement(Vector(0, 0, 55.5), App.Rotation())
sketch8.addGeometry(Part.Circle(Vector(-12, 3, 0), Vector(0, 0, 1), 2.8), False)
sketch8.addConstraint(Sketcher.Constraint("Diameter", 0, 5.5))
sketch8.addConstraint(Sketcher.Constraint("DistanceX", 0, 3, -1, 1, 12.0))
sketch8.addConstraint(Sketcher.Constraint("DistanceY", -1, 1, 0, 3, 3.0))
pocket6 = body.newObject("PartDesign::Pocket", "Pocket005")
pocket6.Profile = sketch8
pocket6.Length = 5

# Sketch on XY plane
sketch9 = body.newObject("Sketcher::SketchObject", "Sketch008")
sketch9.AttachmentSupport = (doc.getObject("XY_Plane"), [""])
sketch9.MapMode = "FlatFace"
sketch9.AttachmentOffset = App.Placement(Vector(0, 0, 11.7), App.Rotation())
sketch9.addGeometry(Part.LineSegment(Vector(-56, 30, 0), Vector(-56, 13, 0)), False)
sketch9.addGeometry(Part.LineSegment(Vector(-56, 13, 0), Vector(-50, 13, 0)), False)
sketch9.addGeometry(Part.LineSegment(Vector(-50, 13, 0), Vector(-50, 30, 0)), False)
sketch9.addGeometry(Part.LineSegment(Vector(-50, 30, 0), Vector(-56, 30, 0)), False)
sketch9.addConstraint(Sketcher.Constraint("Coincident", 0, 2, 1, 1))
sketch9.addConstraint(Sketcher.Constraint("Coincident", 1, 2, 2, 1))
sketch9.addConstraint(Sketcher.Constraint("Coincident", 2, 2, 3, 1))
sketch9.addConstraint(Sketcher.Constraint("Coincident", 3, 2, 0, 1))
sketch9.addConstraint(Sketcher.Constraint("Vertical", 0))
sketch9.addConstraint(Sketcher.Constraint("Horizontal", 1))
sketch9.addConstraint(Sketcher.Constraint("Vertical", 2))
sketch9.addConstraint(Sketcher.Constraint("Horizontal", 3))
sketch9.addConstraint(Sketcher.Constraint("DistanceX", 1, 1, 1, 2, 5.0))
sketch9.addConstraint(Sketcher.Constraint("DistanceY", 0, 2, 0, 1, 17.0))
sketch9.addConstraint(Sketcher.Constraint("DistanceY", -1, 1, 0, 2, 13.0))
sketch9.addConstraint(Sketcher.Constraint("DistanceX", 0, 2, -1, 1, 55.5))
pocket7 = body.newObject("PartDesign::Pocket", "Pocket006")
pocket7.Profile = sketch9
pocket7.Length = 2.5

# Sketch on XY plane
sketch10 = body.newObject("Sketcher::SketchObject", "Sketch009")
sketch10.AttachmentSupport = (doc.getObject("XY_Plane"), [""])
sketch10.MapMode = "FlatFace"
sketch10.AttachmentOffset = App.Placement(Vector(0, 0, 9.2), App.Rotation())
sketch10.addGeometry(Part.LineSegment(Vector(-55.5, 30, 0), Vector(-55.5, 13, 0)), False)
sketch10.addGeometry(Part.LineSegment(Vector(-55.5, 13, 0), Vector(-52.5, 13, 0)), False)
sketch10.addGeometry(Part.LineSegment(Vector(-52.5, 13, 0), Vector(-52.5, 30, 0)), False)
sketch10.addGeometry(Part.LineSegment(Vector(-52.5, 30, 0), Vector(-55.5, 30, 0)), False)
sketch10.addConstraint(Sketcher.Constraint("Coincident", 0, 2, 1, 1))
sketch10.addConstraint(Sketcher.Constraint("Coincident", 1, 2, 2, 1))
sketch10.addConstraint(Sketcher.Constraint("Coincident", 2, 2, 3, 1))
sketch10.addConstraint(Sketcher.Constraint("Coincident", 3, 2, 0, 1))
sketch10.addConstraint(Sketcher.Constraint("Vertical", 0))
sketch10.addConstraint(Sketcher.Constraint("Horizontal", 1))
sketch10.addConstraint(Sketcher.Constraint("Vertical", 2))
sketch10.addConstraint(Sketcher.Constraint("Horizontal", 3))
sketch10.addConstraint(Sketcher.Constraint("DistanceX", 1, 1, 1, 2, 3.0))
sketch10.addConstraint(Sketcher.Constraint("DistanceY", 0, 2, 0, 1, 17.0))
sketch10.addConstraint(Sketcher.Constraint("DistanceY", -1, 1, 0, 2, 13.0))
sketch10.addConstraint(Sketcher.Constraint("DistanceX", 0, 2, -1, 1, 55.5))
pocket8 = body.newObject("PartDesign::Pocket", "Pocket007")
pocket8.Profile = sketch10
pocket8.Length = 4.5

# Sketch on YZ plane
sketch11 = body.newObject("Sketcher::SketchObject", "Sketch010")
sketch11.AttachmentSupport = (doc.getObject("YZ_Plane"), [""])
sketch11.MapMode = "FlatFace"
sketch11.AttachmentOffset = App.Placement(Vector(0, 0, -52.5), App.Rotation())
sketch11.addGeometry(Part.ArcOfCircle(Part.Circle(Vector(25, 9.2, 0), Vector(0, 0, 1), 2), math.radians(-90), math.radians(90)), False)
sketch11.addGeometry(Part.LineSegment(Vector(25, 7.2, 0), Vector(18, 7.2, 0)), False)
sketch11.addGeometry(Part.ArcOfCircle(Part.Circle(Vector(18, 9.2, 0), Vector(0, 0, 1), 2), math.radians(90), math.radians(270)), False)
sketch11.addGeometry(Part.LineSegment(Vector(18, 11.2, 0), Vector(25, 11.2, 0)), False)
sketch11.addConstraint(Sketcher.Constraint("Tangent", 0, 1, 1, 1))
sketch11.addConstraint(Sketcher.Constraint("Tangent", 1, 2, 2, 2))
sketch11.addConstraint(Sketcher.Constraint("Tangent", 2, 1, 3, 1))
sketch11.addConstraint(Sketcher.Constraint("Tangent", 3, 2, 0, 2))
sketch11.addConstraint(Sketcher.Constraint("Horizontal", 1))
sketch11.addConstraint(Sketcher.Constraint("Horizontal", 3))
sketch11.addConstraint(Sketcher.Constraint("Radius", 0, 2.0))
sketch11.addConstraint(Sketcher.Constraint("DistanceX", 1, 2, 1, 1, 7.0))
sketch11.addConstraint(Sketcher.Constraint("DistanceX", -1, 1, 0, 3, 25.0))
sketch11.addConstraint(Sketcher.Constraint("DistanceY", -1, 1, 0, 3, 9.2))
pocket9 = body.newObject("PartDesign::Pocket", "Pocket008")
pocket9.Profile = sketch11
pocket9.Length = 2
pocket9.Reversed = True
doc.recompute()

fillet2 = body.newObject("PartDesign::Fillet", "Fillet001")
fillet2.Base = (pocket9, edges_at(pocket9, [(-55.5, 21.5, 4.7), (-55.5, 30, 8.2), (-55.5, 13, 8.2)]))
fillet2.Radius = 2

doc.recompute()
